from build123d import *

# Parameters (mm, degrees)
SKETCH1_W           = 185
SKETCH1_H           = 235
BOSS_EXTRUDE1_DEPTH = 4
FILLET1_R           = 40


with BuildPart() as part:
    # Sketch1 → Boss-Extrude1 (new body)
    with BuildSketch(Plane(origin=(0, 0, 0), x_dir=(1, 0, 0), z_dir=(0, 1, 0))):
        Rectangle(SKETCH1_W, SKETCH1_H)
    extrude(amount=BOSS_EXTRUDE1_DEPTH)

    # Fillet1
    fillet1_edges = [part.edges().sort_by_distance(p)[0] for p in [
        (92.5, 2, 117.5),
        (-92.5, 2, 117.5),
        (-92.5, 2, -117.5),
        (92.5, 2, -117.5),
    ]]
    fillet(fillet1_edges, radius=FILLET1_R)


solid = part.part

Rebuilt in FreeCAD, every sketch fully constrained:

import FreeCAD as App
import Part
import Sketcher
from FreeCAD import Vector
Q = App.Units.Quantity


def edges_at(feature, points):
    """Names of the edges that pass closest to the given points."""
    edges = feature.Shape.Edges
    near = lambda p: min(range(len(edges)), key=lambda i: edges[i].distToShape(Part.Vertex(*p))[0])
    return sorted({f"Edge{near(p) + 1}" for p in points})

doc = App.newDocument("Part")
params = doc.addObject("Spreadsheet::Sheet", "Params")
for row, (alias, value) in enumerate([
    ("sketch1_width", "185 mm"),
    ("sketch1_height", "235 mm"),
    ("pad1_length", "4 mm"),
    ("fillet_radius", "40 mm"),
], start=1):
    params.set(f"A{row}", alias)
    params.set(f"B{row}", "=" + value)
    params.setAlias(f"B{row}", alias)

body = doc.addObject("PartDesign::Body", "Body")

sketch1 = body.newObject("Sketcher::SketchObject", "Sketch")
sketch1.AttachmentSupport = (doc.getObject("XZ_Plane"), [""])
sketch1.MapMode = "FlatFace"
sketch1.addGeometry(Part.LineSegment(Vector(-92, -118, 0), Vector(-92, 118, 0)), False)
sketch1.addGeometry(Part.LineSegment(Vector(-92, 118, 0), Vector(92, 118, 0)), False)
sketch1.addGeometry(Part.LineSegment(Vector(92, 118, 0), Vector(92, -118, 0)), False)
sketch1.addGeometry(Part.LineSegment(Vector(92, -118, 0), Vector(-92, -118, 0)), False)
sketch1.addConstraint(Sketcher.Constraint("Coincident", 0, 2, 1, 1))
sketch1.addConstraint(Sketcher.Constraint("Coincident", 1, 2, 2, 1))
sketch1.addConstraint(Sketcher.Constraint("Coincident", 2, 2, 3, 1))
sketch1.addConstraint(Sketcher.Constraint("Coincident", 3, 2, 0, 1))
sketch1.addConstraint(Sketcher.Constraint("Vertical", 0))
sketch1.addConstraint(Sketcher.Constraint("Horizontal", 1))
sketch1.addConstraint(Sketcher.Constraint("Vertical", 2))
sketch1.addConstraint(Sketcher.Constraint("Horizontal", 3))
sketch1.addConstraint(Sketcher.Constraint("Symmetric", 0, 2, 2, 2, -1, 1))
sketch1.addConstraint(Sketcher.Constraint("DistanceX", 1, 1, 1, 2, Q("185 mm")))
sketch1.addConstraint(Sketcher.Constraint("DistanceY", 0, 1, 0, 2, Q("235 mm")))
sketch1.setExpression("Constraints[9]", "Params.sketch1_width")
sketch1.setExpression("Constraints[10]", "Params.sketch1_height")
pad1 = body.newObject("PartDesign::Pad", "Pad")
pad1.Profile = sketch1
pad1.setExpression("Length", "Params.pad1_length")
pad1.Reversed = True
doc.recompute()

fillet = body.newObject("PartDesign::Fillet", "Fillet")
fillet.Base = (pad1, edges_at(pad1, [
    (92.5, 2, 117.5),
    (-92.5, 2, 117.5),
    (-92.5, 2, -117.5),
    (92.5, 2, -117.5),
]))
fillet.setExpression("Radius", "Params.fillet_radius")

doc.recompute()
